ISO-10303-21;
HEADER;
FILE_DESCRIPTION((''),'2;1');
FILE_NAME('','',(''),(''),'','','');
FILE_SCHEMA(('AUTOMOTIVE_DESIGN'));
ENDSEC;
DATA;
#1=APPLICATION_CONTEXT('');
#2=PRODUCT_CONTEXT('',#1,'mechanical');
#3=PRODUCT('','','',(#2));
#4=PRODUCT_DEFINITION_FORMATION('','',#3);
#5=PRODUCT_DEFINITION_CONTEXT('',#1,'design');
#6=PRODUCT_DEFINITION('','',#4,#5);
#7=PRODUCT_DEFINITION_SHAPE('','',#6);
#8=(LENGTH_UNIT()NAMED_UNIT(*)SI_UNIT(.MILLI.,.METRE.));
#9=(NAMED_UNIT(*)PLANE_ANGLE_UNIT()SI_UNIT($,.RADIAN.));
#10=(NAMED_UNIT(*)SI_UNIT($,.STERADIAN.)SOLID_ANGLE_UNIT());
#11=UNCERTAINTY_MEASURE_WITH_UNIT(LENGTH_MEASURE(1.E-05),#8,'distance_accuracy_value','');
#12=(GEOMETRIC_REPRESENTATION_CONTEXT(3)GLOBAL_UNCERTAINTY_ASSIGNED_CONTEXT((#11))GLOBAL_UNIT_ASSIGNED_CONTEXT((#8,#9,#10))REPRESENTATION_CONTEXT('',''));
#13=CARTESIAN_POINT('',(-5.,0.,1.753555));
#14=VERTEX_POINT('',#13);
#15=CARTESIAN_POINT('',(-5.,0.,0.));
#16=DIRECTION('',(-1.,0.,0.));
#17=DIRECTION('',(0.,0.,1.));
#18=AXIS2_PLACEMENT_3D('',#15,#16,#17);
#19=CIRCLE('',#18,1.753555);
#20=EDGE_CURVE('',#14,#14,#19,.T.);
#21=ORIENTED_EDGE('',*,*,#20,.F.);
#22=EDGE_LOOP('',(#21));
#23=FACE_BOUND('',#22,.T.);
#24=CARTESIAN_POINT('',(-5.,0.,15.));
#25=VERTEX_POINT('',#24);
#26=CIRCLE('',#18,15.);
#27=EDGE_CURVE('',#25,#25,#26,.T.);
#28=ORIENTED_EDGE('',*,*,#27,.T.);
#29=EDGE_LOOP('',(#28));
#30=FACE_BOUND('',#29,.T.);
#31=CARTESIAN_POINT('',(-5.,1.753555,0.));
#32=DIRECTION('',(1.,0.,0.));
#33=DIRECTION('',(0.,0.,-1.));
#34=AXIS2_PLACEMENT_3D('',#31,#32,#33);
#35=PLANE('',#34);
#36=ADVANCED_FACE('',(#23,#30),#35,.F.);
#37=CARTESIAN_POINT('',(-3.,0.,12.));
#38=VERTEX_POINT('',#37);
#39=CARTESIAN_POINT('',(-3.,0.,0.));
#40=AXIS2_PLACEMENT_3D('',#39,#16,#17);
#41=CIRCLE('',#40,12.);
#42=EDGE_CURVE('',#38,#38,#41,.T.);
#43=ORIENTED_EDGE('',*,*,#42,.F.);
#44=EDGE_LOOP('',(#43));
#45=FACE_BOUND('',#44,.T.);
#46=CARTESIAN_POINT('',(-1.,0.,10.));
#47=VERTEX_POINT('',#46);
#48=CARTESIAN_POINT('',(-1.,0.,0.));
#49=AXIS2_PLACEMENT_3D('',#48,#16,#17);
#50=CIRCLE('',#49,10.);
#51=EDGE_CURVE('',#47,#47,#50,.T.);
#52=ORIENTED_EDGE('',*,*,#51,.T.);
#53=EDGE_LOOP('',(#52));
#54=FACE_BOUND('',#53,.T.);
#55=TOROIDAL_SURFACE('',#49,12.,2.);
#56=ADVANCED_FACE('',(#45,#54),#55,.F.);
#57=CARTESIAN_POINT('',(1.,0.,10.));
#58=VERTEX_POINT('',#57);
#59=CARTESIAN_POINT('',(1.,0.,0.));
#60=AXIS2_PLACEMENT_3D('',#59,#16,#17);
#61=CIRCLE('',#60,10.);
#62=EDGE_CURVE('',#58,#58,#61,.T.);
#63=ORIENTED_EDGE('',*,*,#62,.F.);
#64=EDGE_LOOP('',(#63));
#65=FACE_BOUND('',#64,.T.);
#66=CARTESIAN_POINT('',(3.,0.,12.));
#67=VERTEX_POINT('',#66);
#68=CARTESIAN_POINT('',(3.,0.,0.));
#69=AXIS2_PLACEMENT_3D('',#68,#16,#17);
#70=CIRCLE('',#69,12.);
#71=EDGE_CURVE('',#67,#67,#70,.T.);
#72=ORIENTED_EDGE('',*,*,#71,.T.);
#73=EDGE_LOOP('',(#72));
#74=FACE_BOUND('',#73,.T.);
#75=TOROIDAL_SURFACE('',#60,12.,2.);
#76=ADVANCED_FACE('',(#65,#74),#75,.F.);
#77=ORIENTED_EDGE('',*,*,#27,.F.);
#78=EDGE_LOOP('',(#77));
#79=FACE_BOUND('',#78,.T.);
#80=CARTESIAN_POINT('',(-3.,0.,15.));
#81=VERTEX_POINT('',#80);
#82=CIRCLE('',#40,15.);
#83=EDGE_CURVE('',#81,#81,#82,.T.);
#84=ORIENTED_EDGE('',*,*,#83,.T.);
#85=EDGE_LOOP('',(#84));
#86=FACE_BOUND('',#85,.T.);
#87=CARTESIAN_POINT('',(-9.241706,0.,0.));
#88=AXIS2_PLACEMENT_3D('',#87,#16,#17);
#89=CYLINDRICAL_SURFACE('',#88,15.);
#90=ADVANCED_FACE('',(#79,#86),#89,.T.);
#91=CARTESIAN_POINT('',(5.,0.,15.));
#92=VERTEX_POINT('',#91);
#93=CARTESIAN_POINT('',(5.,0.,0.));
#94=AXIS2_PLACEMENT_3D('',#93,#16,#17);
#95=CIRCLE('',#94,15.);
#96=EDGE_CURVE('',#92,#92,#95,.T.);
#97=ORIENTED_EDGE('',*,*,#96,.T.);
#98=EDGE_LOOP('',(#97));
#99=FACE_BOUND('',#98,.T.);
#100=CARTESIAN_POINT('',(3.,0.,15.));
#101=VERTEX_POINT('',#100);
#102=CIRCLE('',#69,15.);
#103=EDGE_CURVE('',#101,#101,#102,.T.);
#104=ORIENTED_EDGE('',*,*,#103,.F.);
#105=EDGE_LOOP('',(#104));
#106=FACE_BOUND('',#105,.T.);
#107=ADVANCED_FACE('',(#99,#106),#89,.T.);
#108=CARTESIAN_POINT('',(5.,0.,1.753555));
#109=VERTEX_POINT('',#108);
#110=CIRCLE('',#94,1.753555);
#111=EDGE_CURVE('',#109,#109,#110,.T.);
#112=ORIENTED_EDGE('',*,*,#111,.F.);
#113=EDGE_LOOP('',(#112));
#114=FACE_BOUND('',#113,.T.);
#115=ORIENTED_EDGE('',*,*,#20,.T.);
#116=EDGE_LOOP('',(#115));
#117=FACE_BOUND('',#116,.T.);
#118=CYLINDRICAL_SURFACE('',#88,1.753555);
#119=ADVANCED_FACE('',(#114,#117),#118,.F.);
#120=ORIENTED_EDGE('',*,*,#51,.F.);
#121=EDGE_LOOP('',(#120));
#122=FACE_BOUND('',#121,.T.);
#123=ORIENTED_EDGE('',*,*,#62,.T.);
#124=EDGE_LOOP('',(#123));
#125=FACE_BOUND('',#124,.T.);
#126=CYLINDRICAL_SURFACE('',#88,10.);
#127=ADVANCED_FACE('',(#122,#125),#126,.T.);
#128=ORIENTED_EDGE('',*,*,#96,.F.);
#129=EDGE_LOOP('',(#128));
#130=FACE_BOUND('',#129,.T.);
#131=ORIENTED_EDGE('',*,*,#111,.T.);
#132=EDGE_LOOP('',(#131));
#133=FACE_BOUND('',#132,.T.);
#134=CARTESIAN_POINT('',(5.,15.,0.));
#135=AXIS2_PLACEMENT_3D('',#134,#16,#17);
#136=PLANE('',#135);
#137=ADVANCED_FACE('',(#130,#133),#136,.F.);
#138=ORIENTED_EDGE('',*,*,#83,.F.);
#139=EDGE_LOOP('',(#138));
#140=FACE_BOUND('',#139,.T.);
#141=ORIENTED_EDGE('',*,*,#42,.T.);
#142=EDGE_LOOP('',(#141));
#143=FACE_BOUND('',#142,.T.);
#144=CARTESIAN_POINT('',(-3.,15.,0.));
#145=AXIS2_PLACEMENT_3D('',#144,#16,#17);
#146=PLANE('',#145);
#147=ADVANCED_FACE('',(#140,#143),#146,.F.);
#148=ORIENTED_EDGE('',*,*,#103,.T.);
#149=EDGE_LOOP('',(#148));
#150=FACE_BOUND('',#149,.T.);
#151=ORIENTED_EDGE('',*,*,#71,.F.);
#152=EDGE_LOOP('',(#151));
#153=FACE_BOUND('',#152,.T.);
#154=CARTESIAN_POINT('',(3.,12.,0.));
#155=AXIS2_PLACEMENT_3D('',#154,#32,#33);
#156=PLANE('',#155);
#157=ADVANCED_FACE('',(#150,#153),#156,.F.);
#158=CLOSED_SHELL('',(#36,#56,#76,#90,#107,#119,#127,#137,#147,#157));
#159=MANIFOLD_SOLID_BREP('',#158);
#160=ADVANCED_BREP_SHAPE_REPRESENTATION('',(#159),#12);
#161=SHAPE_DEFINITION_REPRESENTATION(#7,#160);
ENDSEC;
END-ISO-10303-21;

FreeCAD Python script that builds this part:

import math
import FreeCAD as App
import Part
import Sketcher

V = App.Vector

doc = App.newDocument("Part")
body = doc.addObject("PartDesign::Body", "Body")

# Sketch on XY plane
sketch1 = doc.addObject("Sketcher::SketchObject", "Sketch")
body.addObject(sketch1)
sketch1.AttachmentSupport = (doc.XY_Plane, [""])
sketch1.MapMode = "FlatFace"
sketch1.addGeometry([
    Part.LineSegment(V(1, 10, 0), V(-1, 10, 0)),  # 0
    Part.ArcOfCircle(Part.Circle(V(-1, 12, 0), V(0, 0, 1), 2), math.radians(-180), math.radians(-90)),  # 1
    Part.LineSegment(V(-3, 12, 0), V(-3, 15, 0)),  # 2
    Part.LineSegment(V(-3, 15, 0), V(-5, 15, 0)),  # 3
    Part.LineSegment(V(-5, 15, 0), V(-5, 1.8, 0)),  # 4
    Part.LineSegment(V(-5, 1.8, 0), V(5, 1.8, 0)),  # 5
    Part.LineSegment(V(5, 1.8, 0), V(5, 15, 0)),  # 6
    Part.LineSegment(V(5, 15, 0), V(3, 15, 0)),  # 7
    Part.LineSegment(V(3, 15, 0), V(3, 12, 0)),  # 8
    Part.ArcOfCircle(Part.Circle(V(1, 12, 0), V(0, 0, 1), 2), math.radians(-90), math.radians(0)),  # 9
], False)
sketch1.addConstraint([
    Sketcher.Constraint("Tangent", 0, 2, 1, 2),
    Sketcher.Constraint("Tangent", 1, 1, 2, 1),
    Sketcher.Constraint("Coincident", 2, 2, 3, 1),
    Sketcher.Constraint("Coincident", 3, 2, 4, 1),
    Sketcher.Constraint("Coincident", 4, 2, 5, 1),
    Sketcher.Constraint("Coincident", 5, 2, 6, 1),
    Sketcher.Constraint("Coincident", 6, 2, 7, 1),
    Sketcher.Constraint("Coincident", 7, 2, 8, 1),
    Sketcher.Constraint("Tangent", 8, 2, 9, 2),
    Sketcher.Constraint("Tangent", 9, 1, 0, 1),
    Sketcher.Constraint("Horizontal", 0),
    Sketcher.Constraint("Vertical", 2),
    Sketcher.Constraint("Horizontal", 3),
    Sketcher.Constraint("Vertical", 4),
    Sketcher.Constraint("Horizontal", 5),
    Sketcher.Constraint("Vertical", 6),
    Sketcher.Constraint("Horizontal", 7),
    Sketcher.Constraint("Vertical", 8),
    Sketcher.Constraint("Equal", 1, 9),
    Sketcher.Constraint("Symmetric", 3, 2, 6, 2, -2),
    Sketcher.Constraint("Equal", 0, 3),
    Sketcher.Constraint("Equal", 3, 7),
    Sketcher.Constraint("Radius", 1, 2.0),
    Sketcher.Constraint("DistanceX", 0, 2, 0, 1, 2.0),
    Sketcher.Constraint("DistanceY", 2, 1, 2, 2, 3.0),
    Sketcher.Constraint("DistanceY", -1, 1, 1, 3, 12.0),
    Sketcher.Constraint("DistanceY", 4, 2, 4, 1, 13.246445),
])
revolution = doc.addObject("PartDesign::Revolution", "Revolution")
body.addObject(revolution)
revolution.Profile = sketch1
revolution.ReferenceAxis = (sketch1, ["H_Axis"])
revolution.Angle = 360

doc.recompute()
